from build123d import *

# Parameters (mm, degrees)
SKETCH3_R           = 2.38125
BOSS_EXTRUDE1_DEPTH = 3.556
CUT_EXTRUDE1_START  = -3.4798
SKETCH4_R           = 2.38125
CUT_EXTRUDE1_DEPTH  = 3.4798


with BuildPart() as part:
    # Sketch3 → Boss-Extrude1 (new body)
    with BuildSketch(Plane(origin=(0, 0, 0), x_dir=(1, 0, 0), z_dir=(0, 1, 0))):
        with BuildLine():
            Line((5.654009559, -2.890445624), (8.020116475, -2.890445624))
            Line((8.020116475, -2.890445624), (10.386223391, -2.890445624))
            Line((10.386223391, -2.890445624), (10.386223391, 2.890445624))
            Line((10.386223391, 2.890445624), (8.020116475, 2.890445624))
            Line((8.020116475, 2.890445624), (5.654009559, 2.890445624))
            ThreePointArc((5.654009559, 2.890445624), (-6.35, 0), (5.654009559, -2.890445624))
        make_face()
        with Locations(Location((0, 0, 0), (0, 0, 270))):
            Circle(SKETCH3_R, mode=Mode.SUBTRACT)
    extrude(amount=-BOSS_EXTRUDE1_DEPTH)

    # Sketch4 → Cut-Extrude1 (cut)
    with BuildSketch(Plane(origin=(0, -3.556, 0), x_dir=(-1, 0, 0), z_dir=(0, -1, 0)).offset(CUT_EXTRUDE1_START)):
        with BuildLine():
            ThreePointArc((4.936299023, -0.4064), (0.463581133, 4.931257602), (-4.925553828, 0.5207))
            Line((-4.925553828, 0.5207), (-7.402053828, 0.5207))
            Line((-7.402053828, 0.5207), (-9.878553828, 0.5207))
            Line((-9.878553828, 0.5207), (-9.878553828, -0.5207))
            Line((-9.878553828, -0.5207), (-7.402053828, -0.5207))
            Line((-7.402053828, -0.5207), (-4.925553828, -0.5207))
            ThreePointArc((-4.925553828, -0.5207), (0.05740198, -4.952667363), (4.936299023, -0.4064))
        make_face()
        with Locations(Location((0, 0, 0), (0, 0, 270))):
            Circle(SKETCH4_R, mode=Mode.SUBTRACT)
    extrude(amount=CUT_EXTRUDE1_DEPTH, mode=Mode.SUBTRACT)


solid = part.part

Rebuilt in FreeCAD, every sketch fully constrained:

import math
import FreeCAD as App
import Part
import Sketcher
Q = App.Units.Quantity

doc = App.newDocument("Part")
params = doc.addObject("Spreadsheet::Sheet", "Params")
for row, (alias, value) in enumerate([
    ("sketch1_radius", "0.25 in"),
    ("sketch1_diameter", "0.1875 in"),
    ("pad1_length", "0.14 in"),
    ("sketch2_diameter", "0.1875 in"),
    ("sketch2_radius", "0.195 in"),
    ("sketch2_width", "0.195 in"),
    ("sketch2_height", "0.041 in"),
    ("pocket1_length", "0.137 in"),
], start=1):
    params.set(f"A{row}", alias)
    params.set(f"B{row}", "=" + value)
    params.setAlias(f"B{row}", alias)

body = doc.addObject("PartDesign::Body", "Body")

sketch1 = body.newObject("Sketcher::SketchObject", "Sketch")
sketch1.AttachmentSupport = (doc.getObject("XZ_Plane"), [""])
sketch1.MapMode = "FlatFace"
sketch1.addGeometry([
    Part.LineSegment(App.Vector(5.7, 2.9, 0), App.Vector(10.4, 2.9, 0)),
    Part.LineSegment(App.Vector(10.4, 2.9, 0), App.Vector(10.4, -2.9, 0)),
    Part.LineSegment(App.Vector(10.4, -2.9, 0), App.Vector(5.7, -2.9, 0)),
    Part.ArcOfCircle(Part.Circle(App.Vector(0, 0, 0), App.Vector(0, 0, 1), 6.3), math.radians(27), math.radians(333)),
    Part.Circle(App.Vector(0, 0, 0), App.Vector(0, 0, 1), 2.4),
], False)
sketch1.addConstraint([
    Sketcher.Constraint("Coincident", 0, 2, 1, 1),
    Sketcher.Constraint("Coincident", 1, 2, 2, 1),
    Sketcher.Constraint("Coincident", 2, 2, 3, 2),
    Sketcher.Constraint("Coincident", 3, 1, 0, 1),
    Sketcher.Constraint("Horizontal", 0),
    Sketcher.Constraint("Vertical", 1),
    Sketcher.Constraint("Horizontal", 2),
    Sketcher.Constraint("Coincident", 3, 3, -1, 1),
    Sketcher.Constraint("Coincident", 4, 3, -1, 1),
    Sketcher.Constraint("Vertical", 2, 2, 3, 1),
    Sketcher.Constraint("Radius", 3, Q("0.25 in")),
    Sketcher.Constraint("Diameter", 4, Q("0.1875 in")),
    Sketcher.Constraint("DistanceY", 1, 2, 1, 1, Q("5.780891 mm")),
    Sketcher.Constraint("DistanceX", 0, 1, 0, 2, Q("4.732214 mm")),
])
sketch1.setExpression("Constraints[10]", "Params.sketch1_radius")
sketch1.setExpression("Constraints[11]", "Params.sketch1_diameter")
pad1 = body.newObject("PartDesign::Pad", "Pad")
pad1.Profile = sketch1
pad1.setExpression("Length", "Params.pad1_length")

sketch2 = body.newObject("Sketcher::SketchObject", "Sketch001")
sketch2.AttachmentSupport = (doc.getObject("XZ_Plane"), [""])
sketch2.MapMode = "FlatFace"
sketch2.AttachmentOffset = App.Placement(App.Vector(0, 0, 0.003 * 25.4), App.Rotation())
sketch2.addGeometry([
    Part.ArcOfCircle(Part.Circle(App.Vector(0, 0, 0), App.Vector(0, 0, 1), 5), math.radians(175), math.radians(354)),
    Part.LineSegment(App.Vector(4.9, -0.5, 0), App.Vector(9.9, -0.5, 0)),
    Part.LineSegment(App.Vector(9.9, -0.5, 0), App.Vector(9.9, 0.5, 0)),
    Part.LineSegment(App.Vector(9.9, 0.5, 0), App.Vector(4.9, 0.5, 0)),
    Part.ArcOfCircle(Part.Circle(App.Vector(0, 0, 0), App.Vector(0, 0, 1), 5), math.radians(6), math.radians(175)),
    Part.Circle(App.Vector(0, 0, 0), App.Vector(0, 0, 1), 2.4),
], False)
sketch2.addConstraint([
    Sketcher.Constraint("Coincident", 0, 2, 1, 1),
    Sketcher.Constraint("Coincident", 1, 2, 2, 1),
    Sketcher.Constraint("Coincident", 2, 2, 3, 1),
    Sketcher.Constraint("Coincident", 3, 2, 4, 1),
    Sketcher.Constraint("Tangent", 4, 2, 0, 1),
    Sketcher.Constraint("Horizontal", 1),
    Sketcher.Constraint("Vertical", 2),
    Sketcher.Constraint("Horizontal", 3),
    Sketcher.Constraint("Coincident", 0, 3, -1, 1),
    Sketcher.Constraint("Coincident", 5, 3, -1, 1),
    Sketcher.Constraint("Equal", 0, 4),
    Sketcher.Constraint("Vertical", 0, 2, 3, 2),
    Sketcher.Constraint("Diameter", 5, Q("0.1875 in")),
    Sketcher.Constraint("Radius", 0, Q("0.195 in")),
    Sketcher.Constraint("DistanceX", 1, 1, 1, 2, Q("0.195 in")),
    Sketcher.Constraint("DistanceY", 2, 1, 2, 2, Q("0.041 in")),
    Sketcher.Constraint("DistanceY", -1, 1, 4, 2, Q("0.016 in")),
])
sketch2.setExpression("Constraints[12]", "Params.sketch2_diameter")
sketch2.setExpression("Constraints[13]", "Params.sketch2_radius")
sketch2.setExpression("Constraints[14]", "Params.sketch2_width")
sketch2.setExpression("Constraints[15]", "Params.sketch2_height")
pocket1 = body.newObject("PartDesign::Pocket", "Pocket")
pocket1.Profile = sketch2
pocket1.setExpression("Length", "Params.pocket1_length")
pocket1.Reversed = True

doc.recompute()
